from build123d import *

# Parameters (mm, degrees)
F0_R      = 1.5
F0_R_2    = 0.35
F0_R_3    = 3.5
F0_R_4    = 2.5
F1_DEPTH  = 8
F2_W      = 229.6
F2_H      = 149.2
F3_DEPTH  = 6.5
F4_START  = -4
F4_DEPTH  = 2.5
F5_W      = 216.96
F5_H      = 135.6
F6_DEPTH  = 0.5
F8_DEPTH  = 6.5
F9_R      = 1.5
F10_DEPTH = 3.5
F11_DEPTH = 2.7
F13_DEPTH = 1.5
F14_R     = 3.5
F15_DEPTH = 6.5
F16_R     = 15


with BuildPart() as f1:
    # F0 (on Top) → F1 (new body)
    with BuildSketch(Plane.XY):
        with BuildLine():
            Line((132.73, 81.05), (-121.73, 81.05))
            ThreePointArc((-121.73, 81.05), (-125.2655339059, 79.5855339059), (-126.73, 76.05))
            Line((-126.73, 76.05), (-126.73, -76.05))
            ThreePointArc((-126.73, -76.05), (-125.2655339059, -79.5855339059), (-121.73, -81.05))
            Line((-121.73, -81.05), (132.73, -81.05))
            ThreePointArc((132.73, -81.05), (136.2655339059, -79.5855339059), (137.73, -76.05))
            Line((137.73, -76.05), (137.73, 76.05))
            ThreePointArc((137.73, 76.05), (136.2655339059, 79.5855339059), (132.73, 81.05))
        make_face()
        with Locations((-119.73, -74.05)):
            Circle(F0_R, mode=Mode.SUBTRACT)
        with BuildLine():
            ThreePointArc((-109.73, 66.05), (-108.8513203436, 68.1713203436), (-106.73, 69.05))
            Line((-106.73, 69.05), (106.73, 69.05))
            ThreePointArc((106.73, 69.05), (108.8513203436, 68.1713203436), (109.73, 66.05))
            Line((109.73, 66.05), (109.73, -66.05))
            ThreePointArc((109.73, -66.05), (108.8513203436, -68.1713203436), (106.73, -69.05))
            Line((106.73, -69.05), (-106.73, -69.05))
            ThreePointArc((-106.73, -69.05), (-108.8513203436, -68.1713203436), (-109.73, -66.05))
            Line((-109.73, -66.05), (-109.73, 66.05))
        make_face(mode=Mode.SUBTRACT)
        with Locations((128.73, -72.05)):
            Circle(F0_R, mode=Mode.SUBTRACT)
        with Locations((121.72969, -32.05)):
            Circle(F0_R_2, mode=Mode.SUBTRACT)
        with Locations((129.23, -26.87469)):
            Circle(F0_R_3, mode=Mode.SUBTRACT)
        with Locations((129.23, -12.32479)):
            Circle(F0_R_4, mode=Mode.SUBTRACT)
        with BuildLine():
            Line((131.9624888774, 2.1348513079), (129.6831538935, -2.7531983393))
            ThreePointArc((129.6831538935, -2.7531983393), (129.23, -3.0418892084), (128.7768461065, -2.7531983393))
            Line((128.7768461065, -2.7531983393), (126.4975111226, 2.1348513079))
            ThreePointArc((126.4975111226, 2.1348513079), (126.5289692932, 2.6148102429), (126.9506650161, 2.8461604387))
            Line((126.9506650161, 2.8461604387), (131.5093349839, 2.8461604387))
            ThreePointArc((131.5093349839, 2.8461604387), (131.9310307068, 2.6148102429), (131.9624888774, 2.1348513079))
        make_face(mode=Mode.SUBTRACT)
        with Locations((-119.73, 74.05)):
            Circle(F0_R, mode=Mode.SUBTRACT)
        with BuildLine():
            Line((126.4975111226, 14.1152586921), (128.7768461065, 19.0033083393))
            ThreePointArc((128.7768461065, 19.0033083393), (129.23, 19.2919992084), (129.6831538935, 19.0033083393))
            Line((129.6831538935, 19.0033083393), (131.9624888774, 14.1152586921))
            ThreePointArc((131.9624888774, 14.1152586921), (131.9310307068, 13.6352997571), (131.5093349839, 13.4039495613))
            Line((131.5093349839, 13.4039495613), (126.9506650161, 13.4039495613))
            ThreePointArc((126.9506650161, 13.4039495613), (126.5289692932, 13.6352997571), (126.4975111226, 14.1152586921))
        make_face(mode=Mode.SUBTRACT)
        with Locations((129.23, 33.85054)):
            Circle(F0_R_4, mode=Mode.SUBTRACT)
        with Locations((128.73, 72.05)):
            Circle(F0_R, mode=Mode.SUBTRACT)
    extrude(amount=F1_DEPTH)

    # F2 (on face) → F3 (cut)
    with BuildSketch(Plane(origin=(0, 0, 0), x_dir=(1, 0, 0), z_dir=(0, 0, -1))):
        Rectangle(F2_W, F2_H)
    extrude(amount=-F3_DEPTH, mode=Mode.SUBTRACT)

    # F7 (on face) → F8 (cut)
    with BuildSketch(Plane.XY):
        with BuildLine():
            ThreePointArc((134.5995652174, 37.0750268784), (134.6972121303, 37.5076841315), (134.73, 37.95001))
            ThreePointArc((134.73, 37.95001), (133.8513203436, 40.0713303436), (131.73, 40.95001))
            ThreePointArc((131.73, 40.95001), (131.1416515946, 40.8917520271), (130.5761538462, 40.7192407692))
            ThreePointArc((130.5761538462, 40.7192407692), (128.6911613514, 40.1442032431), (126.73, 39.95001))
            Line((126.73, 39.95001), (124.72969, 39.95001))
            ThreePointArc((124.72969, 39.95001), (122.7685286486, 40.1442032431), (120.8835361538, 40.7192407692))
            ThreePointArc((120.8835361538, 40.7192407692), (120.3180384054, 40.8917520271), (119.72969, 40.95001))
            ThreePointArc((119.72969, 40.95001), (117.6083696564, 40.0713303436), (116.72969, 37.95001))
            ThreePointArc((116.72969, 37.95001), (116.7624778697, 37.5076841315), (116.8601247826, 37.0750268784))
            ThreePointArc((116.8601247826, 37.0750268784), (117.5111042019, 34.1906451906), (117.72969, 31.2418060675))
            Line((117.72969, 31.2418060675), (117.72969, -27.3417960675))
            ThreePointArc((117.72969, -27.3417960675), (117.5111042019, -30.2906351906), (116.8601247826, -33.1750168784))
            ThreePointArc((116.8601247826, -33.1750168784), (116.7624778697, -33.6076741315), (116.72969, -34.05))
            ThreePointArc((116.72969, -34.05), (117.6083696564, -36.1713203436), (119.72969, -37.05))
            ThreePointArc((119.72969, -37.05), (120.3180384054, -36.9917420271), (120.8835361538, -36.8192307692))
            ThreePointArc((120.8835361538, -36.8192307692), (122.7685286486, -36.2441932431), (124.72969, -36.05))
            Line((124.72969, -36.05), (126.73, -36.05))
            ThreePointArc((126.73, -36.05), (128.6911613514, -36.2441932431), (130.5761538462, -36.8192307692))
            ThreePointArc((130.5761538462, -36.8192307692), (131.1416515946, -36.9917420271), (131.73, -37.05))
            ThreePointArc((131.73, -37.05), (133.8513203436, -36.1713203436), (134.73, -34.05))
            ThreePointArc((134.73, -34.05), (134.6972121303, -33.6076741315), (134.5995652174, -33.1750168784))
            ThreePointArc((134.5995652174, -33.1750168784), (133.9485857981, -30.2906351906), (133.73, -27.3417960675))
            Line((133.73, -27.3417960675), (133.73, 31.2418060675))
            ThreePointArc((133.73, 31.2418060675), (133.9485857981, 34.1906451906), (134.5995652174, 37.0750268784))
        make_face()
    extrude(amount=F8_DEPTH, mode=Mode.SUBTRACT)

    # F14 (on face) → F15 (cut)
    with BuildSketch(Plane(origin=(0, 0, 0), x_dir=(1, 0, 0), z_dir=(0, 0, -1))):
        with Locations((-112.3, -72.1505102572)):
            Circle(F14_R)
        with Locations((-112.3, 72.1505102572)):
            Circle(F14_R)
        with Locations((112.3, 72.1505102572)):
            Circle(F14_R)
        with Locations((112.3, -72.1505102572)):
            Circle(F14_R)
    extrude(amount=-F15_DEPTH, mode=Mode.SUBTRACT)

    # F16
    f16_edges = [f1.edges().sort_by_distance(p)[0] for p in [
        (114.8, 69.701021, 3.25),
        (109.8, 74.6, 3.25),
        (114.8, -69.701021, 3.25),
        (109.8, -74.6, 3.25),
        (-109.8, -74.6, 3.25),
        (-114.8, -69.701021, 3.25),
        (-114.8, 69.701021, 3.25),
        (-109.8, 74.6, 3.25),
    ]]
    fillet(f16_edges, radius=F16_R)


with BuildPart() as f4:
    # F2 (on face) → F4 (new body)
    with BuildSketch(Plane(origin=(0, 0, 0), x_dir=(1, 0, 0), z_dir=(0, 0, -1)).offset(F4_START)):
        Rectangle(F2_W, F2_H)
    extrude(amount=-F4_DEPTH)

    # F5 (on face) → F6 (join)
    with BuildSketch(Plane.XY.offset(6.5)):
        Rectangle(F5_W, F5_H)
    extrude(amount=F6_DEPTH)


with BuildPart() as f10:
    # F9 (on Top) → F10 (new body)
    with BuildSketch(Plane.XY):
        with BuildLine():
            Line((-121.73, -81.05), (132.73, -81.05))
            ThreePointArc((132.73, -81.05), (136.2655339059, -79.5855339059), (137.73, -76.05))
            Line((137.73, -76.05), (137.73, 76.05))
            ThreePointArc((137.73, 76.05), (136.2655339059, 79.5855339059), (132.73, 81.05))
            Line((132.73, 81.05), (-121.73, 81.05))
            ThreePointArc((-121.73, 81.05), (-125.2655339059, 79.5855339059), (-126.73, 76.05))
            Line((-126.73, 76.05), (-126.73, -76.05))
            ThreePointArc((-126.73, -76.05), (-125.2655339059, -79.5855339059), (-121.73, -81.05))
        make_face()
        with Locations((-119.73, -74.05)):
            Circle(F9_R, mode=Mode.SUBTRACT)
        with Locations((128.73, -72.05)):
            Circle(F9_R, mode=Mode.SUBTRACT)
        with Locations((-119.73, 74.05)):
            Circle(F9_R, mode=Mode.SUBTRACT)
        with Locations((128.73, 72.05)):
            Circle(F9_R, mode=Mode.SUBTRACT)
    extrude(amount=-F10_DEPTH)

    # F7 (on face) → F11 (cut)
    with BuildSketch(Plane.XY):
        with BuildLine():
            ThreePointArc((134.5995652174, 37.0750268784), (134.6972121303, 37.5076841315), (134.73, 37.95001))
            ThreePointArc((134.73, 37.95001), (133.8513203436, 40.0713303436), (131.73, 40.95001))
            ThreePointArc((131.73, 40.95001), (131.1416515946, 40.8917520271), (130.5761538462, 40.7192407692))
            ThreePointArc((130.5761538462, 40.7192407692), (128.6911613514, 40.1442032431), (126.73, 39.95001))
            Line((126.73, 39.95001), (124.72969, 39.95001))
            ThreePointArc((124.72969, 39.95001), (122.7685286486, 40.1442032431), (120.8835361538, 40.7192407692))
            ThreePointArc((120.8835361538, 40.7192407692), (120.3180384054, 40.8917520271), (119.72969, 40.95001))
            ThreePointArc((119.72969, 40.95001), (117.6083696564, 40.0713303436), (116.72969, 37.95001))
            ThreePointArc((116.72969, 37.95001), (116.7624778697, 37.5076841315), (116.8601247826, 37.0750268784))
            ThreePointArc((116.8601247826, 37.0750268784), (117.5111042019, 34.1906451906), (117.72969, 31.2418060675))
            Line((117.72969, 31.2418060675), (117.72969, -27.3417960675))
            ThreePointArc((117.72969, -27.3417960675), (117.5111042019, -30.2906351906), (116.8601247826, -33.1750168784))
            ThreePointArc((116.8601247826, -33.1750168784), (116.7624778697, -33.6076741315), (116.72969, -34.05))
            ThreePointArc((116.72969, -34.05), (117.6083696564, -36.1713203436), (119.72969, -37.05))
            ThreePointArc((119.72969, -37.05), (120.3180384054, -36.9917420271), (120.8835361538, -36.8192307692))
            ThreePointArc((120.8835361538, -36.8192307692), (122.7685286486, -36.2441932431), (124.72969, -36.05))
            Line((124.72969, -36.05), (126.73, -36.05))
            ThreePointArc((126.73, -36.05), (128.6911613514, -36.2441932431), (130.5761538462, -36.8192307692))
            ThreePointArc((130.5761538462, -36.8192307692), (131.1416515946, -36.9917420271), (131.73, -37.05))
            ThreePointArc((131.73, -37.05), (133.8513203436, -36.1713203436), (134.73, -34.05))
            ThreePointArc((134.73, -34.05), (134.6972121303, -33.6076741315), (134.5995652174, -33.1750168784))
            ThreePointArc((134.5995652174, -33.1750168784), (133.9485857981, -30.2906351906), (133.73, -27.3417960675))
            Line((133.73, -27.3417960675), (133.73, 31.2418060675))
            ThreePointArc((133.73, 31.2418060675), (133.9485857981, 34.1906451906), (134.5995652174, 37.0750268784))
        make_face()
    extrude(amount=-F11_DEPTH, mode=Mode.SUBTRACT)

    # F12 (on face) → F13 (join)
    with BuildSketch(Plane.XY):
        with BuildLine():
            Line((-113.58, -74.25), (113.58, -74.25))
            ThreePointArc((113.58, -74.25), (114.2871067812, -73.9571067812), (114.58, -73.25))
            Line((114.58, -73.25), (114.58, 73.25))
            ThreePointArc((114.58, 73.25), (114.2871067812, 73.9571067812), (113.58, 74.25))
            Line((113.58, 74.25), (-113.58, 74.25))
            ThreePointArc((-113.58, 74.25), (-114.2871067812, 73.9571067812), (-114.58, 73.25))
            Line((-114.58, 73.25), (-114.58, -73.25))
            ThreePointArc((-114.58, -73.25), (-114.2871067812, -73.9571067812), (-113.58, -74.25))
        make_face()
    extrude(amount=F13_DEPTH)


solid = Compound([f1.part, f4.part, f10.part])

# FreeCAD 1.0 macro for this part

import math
import FreeCAD as App
import Part
import Sketcher

V = App.Vector
Q = App.Units.Quantity


def edges_at(feature, points):
    """Names of the edges that pass closest to the given points."""
    edges = feature.Shape.Edges
    near = lambda p: min(range(len(edges)), key=lambda i: edges[i].distToShape(Part.Vertex(*p))[0])
    return sorted({f"Edge{near(p) + 1}" for p in points})


def add_polygon(sketch, points):
    """Adds a closed chain of lines whose ends are joined by coincident constraints."""
    first, n = sketch.GeometryCount, len(points)
    for a, b in zip(points, points[1:] + points[:1]):
        sketch.addGeometry(Part.LineSegment(App.Vector(*a, 0), App.Vector(*b, 0)), False)
    for i in range(n):
        sketch.addConstraint(Sketcher.Constraint("Coincident", first + i, 2, first + (i + 1) % n, 1))

doc = App.newDocument("Part")
body = doc.addObject("PartDesign::Body", "Body")

# Sketch on XY plane
sketch1 = body.newObject("Sketcher::SketchObject", "Sketch")
sketch1.AttachmentSupport = (doc.getObject("XY_Plane"), [""])
sketch1.MapMode = "FlatFace"
sketch1.addGeometry([
    Part.LineSegment(V(132.73, 81.05, 0), V(-121.73, 81.05, 0)),  # 0
    Part.ArcOfCircle(Part.Circle(V(-121.73, 76.05, 0), V(0, 0, 1), 5), math.radians(90), math.radians(180)),  # 1
    Part.LineSegment(V(-126.73, 76.05, 0), V(-126.73, -76.05, 0)),  # 2
    Part.ArcOfCircle(Part.Circle(V(-121.73, -76.05, 0), V(0, 0, 1), 5), math.radians(180), math.radians(270)),  # 3
    Part.LineSegment(V(-121.73, -81.05, 0), V(132.73, -81.05, 0)),  # 4
    Part.ArcOfCircle(Part.Circle(V(132.73, -76.05, 0), V(0, 0, 1), 5), math.radians(-90), math.radians(0)),  # 5
    Part.LineSegment(V(137.73, -76.05, 0), V(137.73, 76.05, 0)),  # 6
    Part.ArcOfCircle(Part.Circle(V(132.73, 76.05, 0), V(0, 0, 1), 5), math.radians(0), math.radians(90)),  # 7
    Part.Circle(V(-119.73, -74.05, 0), V(0, 0, 1), 1.5),  # 8
    Part.Circle(V(128.73, -72.05, 0), V(0, 0, 1), 1.5),  # 9
    Part.Circle(V(121.73, -32.05, 0), V(0, 0, 1), 0.35),  # 10
    Part.Circle(V(129.23, -26.87, 0), V(0, 0, 1), 3.5),  # 11
    Part.Circle(V(129.23, -12.32, 0), V(0, 0, 1), 2.5),  # 12
    Part.ArcOfCircle(Part.Circle(V(131.51, 2.35, 0), V(0, 0, 1), 0.5), math.radians(-25), math.radians(90)),  # 13
    Part.LineSegment(V(131.96, 2.13, 0), V(129.68, -2.75, 0)),  # 14
    Part.ArcOfCircle(Part.Circle(V(129.23, -2.54, 0), V(0, 0, 1), 0.5), math.radians(-155), math.radians(-25)),  # 15
    Part.LineSegment(V(128.78, -2.75, 0), V(126.5, 2.13, 0)),  # 16
    Part.ArcOfCircle(Part.Circle(V(126.95, 2.35, 0), V(0, 0, 1), 0.5), math.radians(90), math.radians(205)),  # 17
    Part.LineSegment(V(126.95, 2.85, 0), V(131.51, 2.85, 0)),  # 18
    Part.LineSegment(V(-109.73, -66.05, 0), V(-109.73, 66.05, 0)),  # 19
    Part.ArcOfCircle(Part.Circle(V(-106.73, 66.05, 0), V(0, 0, 1), 3), math.radians(90), math.radians(180)),  # 20
    Part.LineSegment(V(-106.73, 69.05, 0), V(106.73, 69.05, 0)),  # 21
    Part.ArcOfCircle(Part.Circle(V(106.73, 66.05, 0), V(0, 0, 1), 3), math.radians(0), math.radians(90)),  # 22
    Part.LineSegment(V(109.73, 66.05, 0), V(109.73, -66.05, 0)),  # 23
    Part.ArcOfCircle(Part.Circle(V(106.73, -66.05, 0), V(0, 0, 1), 3), math.radians(-90), math.radians(0)),  # 24
    Part.LineSegment(V(106.73, -69.05, 0), V(-106.73, -69.05, 0)),  # 25
    Part.ArcOfCircle(Part.Circle(V(-106.73, -66.05, 0), V(0, 0, 1), 3), math.radians(180), math.radians(270)),  # 26
    Part.Circle(V(-119.73, 74.05, 0), V(0, 0, 1), 1.5),  # 27
    Part.ArcOfCircle(Part.Circle(V(126.95, 13.9, 0), V(0, 0, 1), 0.5), math.radians(155), math.radians(270)),  # 28
    Part.LineSegment(V(126.5, 14.12, 0), V(128.78, 19, 0)),  # 29
    Part.ArcOfCircle(Part.Circle(V(129.23, 18.79, 0), V(0, 0, 1), 0.5), math.radians(25), math.radians(155)),  # 30
    Part.LineSegment(V(129.68, 19, 0), V(131.96, 14.12, 0)),  # 31
    Part.ArcOfCircle(Part.Circle(V(131.51, 13.9, 0), V(0, 0, 1), 0.5), math.radians(-90), math.radians(25)),  # 32
    Part.LineSegment(V(131.51, 13.4, 0), V(126.95, 13.4, 0)),  # 33
    Part.Circle(V(129.23, 33.85, 0), V(0, 0, 1), 2.5),  # 34
    Part.Circle(V(128.73, 72.05, 0), V(0, 0, 1), 1.5),  # 35
], False)
sketch1.addConstraint([
    Sketcher.Constraint("Tangent", 0, 2, 1, 1),
    Sketcher.Constraint("Tangent", 1, 2, 2, 1),
    Sketcher.Constraint("Tangent", 2, 2, 3, 1),
    Sketcher.Constraint("Tangent", 3, 2, 4, 1),
    Sketcher.Constraint("Tangent", 4, 2, 5, 1),
    Sketcher.Constraint("Tangent", 5, 2, 6, 1),
    Sketcher.Constraint("Tangent", 6, 2, 7, 1),
    Sketcher.Constraint("Tangent", 7, 2, 0, 1),
    Sketcher.Constraint("Tangent", 13, 1, 14, 1),
    Sketcher.Constraint("Tangent", 14, 2, 15, 2),
    Sketcher.Constraint("Tangent", 15, 1, 16, 1),
    Sketcher.Constraint("Tangent", 16, 2, 17, 2),
    Sketcher.Constraint("Tangent", 17, 1, 18, 1),
    Sketcher.Constraint("Tangent", 18, 2, 13, 2),
    Sketcher.Constraint("Tangent", 19, 2, 20, 2),
    Sketcher.Constraint("Tangent", 20, 1, 21, 1),
    Sketcher.Constraint("Tangent", 21, 2, 22, 2),
    Sketcher.Constraint("Tangent", 22, 1, 23, 1),
    Sketcher.Constraint("Tangent", 23, 2, 24, 2),
    Sketcher.Constraint("Tangent", 24, 1, 25, 1),
    Sketcher.Constraint("Tangent", 25, 2, 26, 2),
    Sketcher.Constraint("Tangent", 26, 1, 19, 1),
    Sketcher.Constraint("Tangent", 28, 1, 29, 1),
    Sketcher.Constraint("Tangent", 29, 2, 30, 2),
    Sketcher.Constraint("Tangent", 30, 1, 31, 1),
    Sketcher.Constraint("Tangent", 31, 2, 32, 2),
    Sketcher.Constraint("Tangent", 32, 1, 33, 1),
    Sketcher.Constraint("Tangent", 33, 2, 28, 2),
    Sketcher.Constraint("Horizontal", 0),
    Sketcher.Constraint("Vertical", 2),
    Sketcher.Constraint("Horizontal", 4),
    Sketcher.Constraint("Vertical", 6),
    Sketcher.Constraint("Horizontal", 18),
    Sketcher.Constraint("Vertical", 19),
    Sketcher.Constraint("Horizontal", 21),
    Sketcher.Constraint("Vertical", 23),
    Sketcher.Constraint("Horizontal", 25),
    Sketcher.Constraint("Horizontal", 33),
    Sketcher.Constraint("Equal", 1, 3),
    Sketcher.Constraint("Equal", 3, 5),
    Sketcher.Constraint("Equal", 5, 7),
    Sketcher.Constraint("Equal", 8, 9),
    Sketcher.Constraint("Equal", 13, 15),
    Sketcher.Constraint("Equal", 15, 17),
    Sketcher.Constraint("Equal", 20, 22),
    Sketcher.Constraint("Equal", 22, 24),
    Sketcher.Constraint("Equal", 24, 26),
    Sketcher.Constraint("Equal", 9, 27),
    Sketcher.Constraint("Equal", 17, 28),
    Sketcher.Constraint("Equal", 28, 30),
    Sketcher.Constraint("Equal", 30, 32),
    Sketcher.Constraint("Equal", 12, 34),
    Sketcher.Constraint("Equal", 27, 35),
    Sketcher.Constraint("Symmetric", 20, 3, 24, 3, -1, 1),
    Sketcher.Constraint("Symmetric", 8, 3, 27, 3, -1),
    Sketcher.Constraint("Symmetric", 9, 3, 35, 3, -1),
    Sketcher.Constraint("Parallel", 14, 29),
    Sketcher.Constraint("Parallel", 16, 31),
    Sketcher.Constraint("Horizontal", 14, 2, 15, 1),
    Sketcher.Constraint("Vertical", 11, 3, 12, 3),
    Sketcher.Constraint("Vertical", 12, 3, 15, 3),
    Sketcher.Constraint("Vertical", 17, 3, 28, 3),
    Sketcher.Constraint("Vertical", 15, 3, 30, 3),
    Sketcher.Constraint("Vertical", 30, 3, 34, 3),
    Sketcher.Constraint("Diameter", 8, Q("3 mm")),
    Sketcher.Constraint("Diameter", 11, Q("7 mm")),
    Sketcher.Constraint("Diameter", 12, Q("5 mm")),
    Sketcher.Constraint("Radius", 1, Q("5 mm")),
    Sketcher.Constraint("Radius", 20, Q("3 mm")),
    Sketcher.Constraint("Diameter", 10, Q("0.7 mm")),
    Sketcher.Constraint("Radius", 13, Q("0.5 mm")),
    Sketcher.Constraint("Angle", 14, Q("-115 deg")),
    Sketcher.Constraint("DistanceY", 2, 2, 2, 1, Q("152.1 mm")),
    Sketcher.Constraint("DistanceY", 19, 1, 19, 2, Q("132.1 mm")),
    Sketcher.Constraint("DistanceX", 3, 3, 8, 3, Q("2 mm")),
    Sketcher.Constraint("DistanceY", 3, 3, 8, 3, Q("2 mm")),
    Sketcher.Constraint("DistanceX", 9, 3, 5, 3, Q("4 mm")),
    Sketcher.Constraint("DistanceY", 5, 3, 9, 3, Q("4 mm")),
    Sketcher.Constraint("DistanceY", 9, 3, 10, 3, Q("40 mm")),
    Sketcher.Constraint("DistanceX", 1, 3, 20, 3, Q("15 mm")),
    Sketcher.Constraint("DistanceY", 20, 3, 1, 3, Q("10 mm")),
    Sketcher.Constraint("DistanceX", 22, 3, 7, 3, Q("26 mm")),
    Sketcher.Constraint("DistanceX", 0, 2, 0, 1, Q("254.46 mm")),
    Sketcher.Constraint("DistanceX", 9, 3, 11, 3, Q("0.5 mm")),
    Sketcher.Constraint("DistanceY", -1, 1, 30, 3, Q("18.791999 mm")),
    Sketcher.Constraint("DistanceX", 18, 1, 18, 2, Q("4.55867 mm")),
    Sketcher.Constraint("DistanceY", 14, 2, -1, 1, Q("2.753198 mm")),
    Sketcher.Constraint("DistanceY", 11, 3, 12, 3, Q("14.5499 mm")),
    Sketcher.Constraint("DistanceY", 12, 3, 15, 3, Q("9.782901 mm")),
    Sketcher.Constraint("DistanceX", -1, 1, 10, 3, Q("121.72969 mm")),
    Sketcher.Constraint("DistanceY", -1, 1, 34, 3, Q("33.85054 mm")),
])
pad1 = body.newObject("PartDesign::Pad", "Pad")
pad1.Profile = sketch1
pad1.Length = 8

# Sketch on XY plane
sketch2 = body.newObject("Sketcher::SketchObject", "Sketch001")
sketch2.AttachmentSupport = (doc.getObject("XY_Plane"), [""])
sketch2.MapMode = "FlatFace"
add_polygon(sketch2, [(-115, -75), (-115, 75), (115, 75), (115, -75)])  # lines 0-3
sketch2.addConstraint([
    Sketcher.Constraint("Vertical", 0),
    Sketcher.Constraint("Horizontal", 1),
    Sketcher.Constraint("Vertical", 2),
    Sketcher.Constraint("Horizontal", 3),
    Sketcher.Constraint("Symmetric", 0, 2, 2, 2, -1, 1),
    Sketcher.Constraint("DistanceX", 1, 1, 1, 2, Q("229.6 mm")),
    Sketcher.Constraint("DistanceY", 0, 1, 0, 2, Q("149.2 mm")),
])
pocket1 = body.newObject("PartDesign::Pocket", "Pocket")
pocket1.Profile = sketch2
pocket1.Length = 6.5
pocket1.Reversed = True

# Sketch on XY plane
sketch3 = body.newObject("Sketcher::SketchObject", "Sketch002")
sketch3.AttachmentSupport = (doc.getObject("XY_Plane"), [""])
sketch3.MapMode = "FlatFace"
sketch3.addGeometry([
    Part.ArcOfCircle(Part.Circle(V(131.7, 38, 0), V(0, 0, 1), 3), math.radians(-16.96), math.radians(0)),  # 0
    Part.ArcOfCircle(Part.Circle(V(131.7, 38, 0), V(0, 0, 1), 3), math.radians(0), math.radians(90)),  # 1
    Part.ArcOfCircle(Part.Circle(V(131.7, 38, 0), V(0, 0, 1), 3), math.radians(90), math.radians(113)),  # 2
    Part.ArcOfCircle(Part.Circle(V(126.7, 50, 0), V(0, 0, 1), 10), math.radians(-90), math.radians(-67)),  # 3
    Part.LineSegment(V(126.7, 40, 0), V(124.7, 40, 0)),  # 4
    Part.ArcOfCircle(Part.Circle(V(124.7, 50, 0), V(0, 0, 1), 10), math.radians(-113), math.radians(-90)),  # 5
    Part.ArcOfCircle(Part.Circle(V(119.7, 38, 0), V(0, 0, 1), 3), math.radians(67), math.radians(90)),  # 6
    Part.ArcOfCircle(Part.Circle(V(119.7, 38, 0), V(0, 0, 1), 3), math.radians(90), math.radians(180)),  # 7
    Part.ArcOfCircle(Part.Circle(V(119.7, 38, 0), V(0, 0, 1), 3), math.radians(180), math.radians(196.96)),  # 8
    Part.ArcOfCircle(Part.Circle(V(97.7, 31.2, 0), V(0, 0, 1), 20), math.radians(0), math.radians(16.96)),  # 9
    Part.LineSegment(V(117.7, 31.2, 0), V(117.7, -27.3, 0)),  # 10
    Part.ArcOfCircle(Part.Circle(V(97.7, -27.3, 0), V(0, 0, 1), 20), math.radians(-16.96), math.radians(0)),  # 11
    Part.ArcOfCircle(Part.Circle(V(119.7, -34, 0), V(0, 0, 1), 3), math.radians(163.04), math.radians(180)),  # 12
    Part.ArcOfCircle(Part.Circle(V(119.7, -34, 0), V(0, 0, 1), 3), math.radians(180), math.radians(270)),  # 13
    Part.ArcOfCircle(Part.Circle(V(119.7, -34.1, 0), V(0, 0, 1), 3), math.radians(-90), math.radians(-67)),  # 14
    Part.ArcOfCircle(Part.Circle(V(124.7, -46.1, 0), V(0, 0, 1), 10), math.radians(90), math.radians(113)),  # 15
    Part.LineSegment(V(124.7, -36, 0), V(126.7, -36, 0)),  # 16
    Part.ArcOfCircle(Part.Circle(V(126.7, -46.1, 0), V(0, 0, 1), 10), math.radians(67), math.radians(90)),  # 17
    Part.ArcOfCircle(Part.Circle(V(131.7, -34.1, 0), V(0, 0, 1), 3), math.radians(-113), math.radians(-90)),  # 18
    Part.ArcOfCircle(Part.Circle(V(131.7, -34, 0), V(0, 0, 1), 3), math.radians(-90), math.radians(0)),  # 19
    Part.ArcOfCircle(Part.Circle(V(131.7, -34, 0), V(0, 0, 1), 3), math.radians(0), math.radians(16.96)),  # 20
    Part.ArcOfCircle(Part.Circle(V(153.7, -27.3, 0), V(0, 0, 1), 20), math.radians(180), math.radians(196.96)),  # 21
    Part.LineSegment(V(133.7, -27.3, 0), V(133.7, 31.2, 0)),  # 22
    Part.ArcOfCircle(Part.Circle(V(153.7, 31.2, 0), V(0, 0, 1), 20), math.radians(163.04), math.radians(180)),  # 23
], False)
sketch3.addConstraint([
    Sketcher.Constraint("Tangent", 0, 2, 1, 1),
    Sketcher.Constraint("Tangent", 1, 2, 2, 1),
    Sketcher.Constraint("Tangent", 2, 2, 3, 2),
    Sketcher.Constraint("Tangent", 3, 1, 4, 1),
    Sketcher.Constraint("Tangent", 4, 2, 5, 2),
    Sketcher.Constraint("Tangent", 5, 1, 6, 1),
    Sketcher.Constraint("Tangent", 6, 2, 7, 1),
    Sketcher.Constraint("Tangent", 7, 2, 8, 1),
    Sketcher.Constraint("Tangent", 8, 2, 9, 2),
    Sketcher.Constraint("Tangent", 9, 1, 10, 1),
    Sketcher.Constraint("Tangent", 10, 2, 11, 2),
    Sketcher.Constraint("Tangent", 11, 1, 12, 1),
    Sketcher.Constraint("Tangent", 12, 2, 13, 1),
    Sketcher.Constraint("Tangent", 13, 2, 14, 1),
    Sketcher.Constraint("Tangent", 14, 2, 15, 2),
    Sketcher.Constraint("Tangent", 15, 1, 16, 1),
    Sketcher.Constraint("Tangent", 16, 2, 17, 2),
    Sketcher.Constraint("Tangent", 17, 1, 18, 1),
    Sketcher.Constraint("Tangent", 18, 2, 19, 1),
    Sketcher.Constraint("Tangent", 19, 2, 20, 1),
    Sketcher.Constraint("Tangent", 20, 2, 21, 2),
    Sketcher.Constraint("Tangent", 21, 1, 22, 1),
    Sketcher.Constraint("Tangent", 22, 2, 23, 2),
    Sketcher.Constraint("Tangent", 23, 1, 0, 1),
    Sketcher.Constraint("Horizontal", 4),
    Sketcher.Constraint("Vertical", 10),
    Sketcher.Constraint("Horizontal", 16),
    Sketcher.Constraint("Vertical", 22),
    Sketcher.Constraint("Coincident", 2, 3, 0, 3),
    Sketcher.Constraint("Coincident", 8, 3, 6, 3),
    Sketcher.Constraint("Coincident", 14, 3, 12, 3),
    Sketcher.Constraint("Coincident", 20, 3, 18, 3),
    Sketcher.Constraint("Equal", 3, 5),
    Sketcher.Constraint("Equal", 2, 6),
    Sketcher.Constraint("Equal", 9, 11),
    Sketcher.Constraint("Equal", 8, 12),
    Sketcher.Constraint("Equal", 5, 15),
    Sketcher.Constraint("Equal", 15, 17),
    Sketcher.Constraint("Equal", 14, 18),
    Sketcher.Constraint("Equal", 11, 21),
    Sketcher.Constraint("Equal", 21, 23),
    Sketcher.Constraint("Horizontal", 2, 3, 6, 3),
    Sketcher.Constraint("Horizontal", 14, 3, 18, 3),
    Sketcher.Constraint("Horizontal", 11, 3, 21, 3),
    Sketcher.Constraint("Horizontal", 9, 3, 23, 3),
    Sketcher.Constraint("Horizontal", 8, 3, 0, 2),
    Sketcher.Constraint("Horizontal", 0, 2, 7, 2),
    Sketcher.Constraint("Horizontal", 20, 3, 12, 2),
    Sketcher.Constraint("Horizontal", 12, 2, 19, 2),
    Sketcher.Constraint("Vertical", 8, 3, 12, 3),
    Sketcher.Constraint("Vertical", 5, 3, 15, 3),
    Sketcher.Constraint("Vertical", 20, 3, 1, 2),
    Sketcher.Constraint("Vertical", 14, 3, 6, 2),
    Sketcher.Constraint("Vertical", 6, 2, 13, 2),
    Sketcher.Constraint("Vertical", 1, 2, 18, 2),
    Sketcher.Constraint("Radius", 0, Q("3 mm")),
    Sketcher.Constraint("Radius", 3, Q("10 mm")),
    Sketcher.Constraint("Radius", 9, Q("20 mm")),
    Sketcher.Constraint("DistanceX", 3, 3, 2, 3, Q("5 mm")),
    Sketcher.Constraint("DistanceX", 9, 3, 8, 3, Q("22 mm")),
    Sketcher.Constraint("DistanceX", -1, 1, 0, 3, Q("131.73 mm")),
    Sketcher.Constraint("DistanceY", 12, 3, -1, 1, Q("34.05 mm")),
    Sketcher.Constraint("DistanceX", 4, 2, 4, 1, Q("2.00031 mm")),
    Sketcher.Constraint("DistanceY", 10, 2, 10, 1, Q("58.583602 mm")),
])
pocket2 = body.newObject("PartDesign::Pocket", "Pocket001")
pocket2.Profile = sketch3
pocket2.Length = 6.5
pocket2.Reversed = True

# Sketch on XY plane
sketch4 = body.newObject("Sketcher::SketchObject", "Sketch003")
sketch4.AttachmentSupport = (doc.getObject("XY_Plane"), [""])
sketch4.MapMode = "FlatFace"
sketch4.addGeometry([
    Part.Circle(V(-112.3, 72.2, 0), V(0, 0, 1), 3.5),
    Part.Circle(V(-112.3, -72.2, 0), V(0, 0, 1), 3.5),
    Part.Circle(V(112.3, -72.2, 0), V(0, 0, 1), 3.5),
    Part.Circle(V(112.3, 72.2, 0), V(0, 0, 1), 3.5),
], False)
sketch4.addConstraint([
    Sketcher.Constraint("Equal", 0, 1),
    Sketcher.Constraint("Equal", 1, 2),
    Sketcher.Constraint("Equal", 2, 3),
    Sketcher.Constraint("Symmetric", 0, 3, 2, 3, -1, 1),
    Sketcher.Constraint("Symmetric", 1, 3, 3, 3, -1, 1),
    Sketcher.Constraint("Symmetric", 1, 3, 2, 3, -2),
    Sketcher.Constraint("Diameter", 0, Q("7 mm")),
    Sketcher.Constraint("DistanceX", 0, 3, -1, 1, Q("112.3 mm")),
    Sketcher.Constraint("DistanceY", -1, 1, 0, 3, Q("72.15051 mm")),
])
pocket3 = body.newObject("PartDesign::Pocket", "Pocket002")
pocket3.Profile = sketch4
pocket3.Length = 6.5
pocket3.Reversed = True
doc.recompute()

fillet = body.newObject("PartDesign::Fillet", "Fillet")
fillet.Base = (pocket3, edges_at(pocket3, [
    (114.8, 69.701, 3.25),
    (109.8, 74.6, 3.25),
    (114.8, -69.701, 3.25),
    (109.8, -74.6, 3.25),
    (-109.8, -74.6, 3.25),
    (-114.8, -69.701, 3.25),
    (-114.8, 69.701, 3.25),
    (-109.8, 74.6, 3.25),
]))
fillet.Radius = 15
body2 = doc.addObject("PartDesign::Body", "Body001")

# Sketch on XY plane
sketch5 = body2.newObject("Sketcher::SketchObject", "Sketch004")
sketch5.AttachmentSupport = (doc.getObject("XY_Plane001"), [""])
sketch5.MapMode = "FlatFace"
sketch5.AttachmentOffset = App.Placement(V(0, 0, 4), App.Rotation())
add_polygon(sketch5, [(-115, -75), (-115, 75), (115, 75), (115, -75)])  # lines 0-3
sketch5.addConstraint([
    Sketcher.Constraint("Vertical", 0),
    Sketcher.Constraint("Horizontal", 1),
    Sketcher.Constraint("Vertical", 2),
    Sketcher.Constraint("Horizontal", 3),
    Sketcher.Constraint("Symmetric", 0, 2, 2, 2, -1, 1),
    Sketcher.Constraint("DistanceX", 1, 1, 1, 2, Q("229.6 mm")),
    Sketcher.Constraint("DistanceY", 0, 1, 0, 2, Q("149.2 mm")),
])
pad2 = body2.newObject("PartDesign::Pad", "Pad001")
pad2.Profile = sketch5
pad2.Length = 2.5

# Sketch on XY plane
sketch6 = body2.newObject("Sketcher::SketchObject", "Sketch005")
sketch6.AttachmentSupport = (doc.getObject("XY_Plane001"), [""])
sketch6.MapMode = "FlatFace"
sketch6.AttachmentOffset = App.Placement(V(0, 0, 6.5), App.Rotation())
add_polygon(sketch6, [(-108, 68), (-108, -68), (108, -68), (108, 68)])  # lines 0-3
sketch6.addConstraint([
    Sketcher.Constraint("Vertical", 0),
    Sketcher.Constraint("Horizontal", 1),
    Sketcher.Constraint("Vertical", 2),
    Sketcher.Constraint("Horizontal", 3),
    Sketcher.Constraint("Symmetric", 0, 2, 2, 2, -1, 1),
    Sketcher.Constraint("DistanceY", 0, 2, 0, 1, Q("135.6 mm")),
    Sketcher.Constraint("DistanceX", 1, 1, 1, 2, Q("216.96 mm")),
])
pad3 = body2.newObject("PartDesign::Pad", "Pad002")
pad3.Profile = sketch6
pad3.Length = 0.5
body3 = doc.addObject("PartDesign::Body", "Body002")

# Sketch on XY plane
sketch7 = body3.newObject("Sketcher::SketchObject", "Sketch006")
sketch7.AttachmentSupport = (doc.getObject("XY_Plane002"), [""])
sketch7.MapMode = "FlatFace"
sketch7.addGeometry([
    Part.LineSegment(V(-121.7, -81, 0), V(132.7, -81, 0)),  # 0
    Part.ArcOfCircle(Part.Circle(V(132.7, -76, 0), V(0, 0, 1), 5), math.radians(-90), math.radians(0)),  # 1
    Part.LineSegment(V(137.7, -76, 0), V(137.7, 76, 0)),  # 2
    Part.ArcOfCircle(Part.Circle(V(132.7, 76, 0), V(0, 0, 1), 5), math.radians(0), math.radians(90)),  # 3
    Part.LineSegment(V(132.7, 81, 0), V(-121.7, 81, 0)),  # 4
    Part.ArcOfCircle(Part.Circle(V(-121.7, 76, 0), V(0, 0, 1), 5), math.radians(90), math.radians(180)),  # 5
    Part.LineSegment(V(-126.7, 76, 0), V(-126.7, -76, 0)),  # 6
    Part.ArcOfCircle(Part.Circle(V(-121.7, -76, 0), V(0, 0, 1), 5), math.radians(180), math.radians(270)),  # 7
    Part.Circle(V(-119.7, -74, 0), V(0, 0, 1), 1.5),  # 8
    Part.Circle(V(128.7, -72, 0), V(0, 0, 1), 1.5),  # 9
    Part.Circle(V(-119.7, 74, 0), V(0, 0, 1), 1.5),  # 10
    Part.Circle(V(128.7, 72, 0), V(0, 0, 1), 1.5),  # 11
], False)
sketch7.addConstraint([
    Sketcher.Constraint("Tangent", 0, 2, 1, 1),
    Sketcher.Constraint("Tangent", 1, 2, 2, 1),
    Sketcher.Constraint("Tangent", 2, 2, 3, 1),
    Sketcher.Constraint("Tangent", 3, 2, 4, 1),
    Sketcher.Constraint("Tangent", 4, 2, 5, 1),
    Sketcher.Constraint("Tangent", 5, 2, 6, 1),
    Sketcher.Constraint("Tangent", 6, 2, 7, 1),
    Sketcher.Constraint("Tangent", 7, 2, 0, 1),
    Sketcher.Constraint("Horizontal", 0),
    Sketcher.Constraint("Vertical", 2),
    Sketcher.Constraint("Horizontal", 4),
    Sketcher.Constraint("Vertical", 6),
    Sketcher.Constraint("Equal", 1, 3),
    Sketcher.Constraint("Equal", 3, 5),
    Sketcher.Constraint("Equal", 5, 7),
    Sketcher.Constraint("Equal", 8, 9),
    Sketcher.Constraint("Equal", 9, 10),
    Sketcher.Constraint("Equal", 10, 11),
    Sketcher.Constraint("Symmetric", 8, 3, 10, 3, -1),
    Sketcher.Constraint("Symmetric", 9, 3, 11, 3, -1),
    Sketcher.Constraint("Diameter", 8, Q("3 mm")),
    Sketcher.Constraint("Radius", 1, Q("5 mm")),
    Sketcher.Constraint("DistanceY", 2, 1, 2, 2, Q("152.1 mm")),
    Sketcher.Constraint("DistanceX", 7, 3, 8, 3, Q("2 mm")),
    Sketcher.Constraint("DistanceY", 7, 3, 8, 3, Q("2 mm")),
    Sketcher.Constraint("DistanceX", 9, 3, 1, 3, Q("4 mm")),
    Sketcher.Constraint("DistanceY", 1, 3, 9, 3, Q("4 mm")),
    Sketcher.Constraint("DistanceY", 10, 3, 5, 3, Q("2 mm")),
    Sketcher.Constraint("DistanceX", 0, 1, 0, 2, Q("254.46 mm")),
    Sketcher.Constraint("DistanceX", -1, 1, 1, 3, Q("132.73 mm")),
])
pad4 = body3.newObject("PartDesign::Pad", "Pad003")
pad4.Profile = sketch7
pad4.Length = 3.5
pad4.Reversed = True

# Sketch on XY plane
sketch8 = body3.newObject("Sketcher::SketchObject", "Sketch007")
sketch8.AttachmentSupport = (doc.getObject("XY_Plane002"), [""])
sketch8.MapMode = "FlatFace"
sketch8.addGeometry([
    Part.ArcOfCircle(Part.Circle(V(131.7, 38, 0), V(0, 0, 1), 3), math.radians(-16.96), math.radians(0)),  # 0
    Part.ArcOfCircle(Part.Circle(V(131.7, 38, 0), V(0, 0, 1), 3), math.radians(0), math.radians(90)),  # 1
    Part.ArcOfCircle(Part.Circle(V(131.7, 38, 0), V(0, 0, 1), 3), math.radians(90), math.radians(113)),  # 2
    Part.ArcOfCircle(Part.Circle(V(126.7, 50, 0), V(0, 0, 1), 10), math.radians(-90), math.radians(-67)),  # 3
    Part.LineSegment(V(126.7, 40, 0), V(124.7, 40, 0)),  # 4
    Part.ArcOfCircle(Part.Circle(V(124.7, 50, 0), V(0, 0, 1), 10), math.radians(-113), math.radians(-90)),  # 5
    Part.ArcOfCircle(Part.Circle(V(119.7, 38, 0), V(0, 0, 1), 3), math.radians(67), math.radians(90)),  # 6
    Part.ArcOfCircle(Part.Circle(V(119.7, 38, 0), V(0, 0, 1), 3), math.radians(90), math.radians(180)),  # 7
    Part.ArcOfCircle(Part.Circle(V(119.7, 38, 0), V(0, 0, 1), 3), math.radians(180), math.radians(196.96)),  # 8
    Part.ArcOfCircle(Part.Circle(V(97.7, 31.2, 0), V(0, 0, 1), 20), math.radians(0), math.radians(16.96)),  # 9
    Part.LineSegment(V(117.7, 31.2, 0), V(117.7, -27.3, 0)),  # 10
    Part.ArcOfCircle(Part.Circle(V(97.7, -27.3, 0), V(0, 0, 1), 20), math.radians(-16.96), math.radians(0)),  # 11
    Part.ArcOfCircle(Part.Circle(V(119.7, -34, 0), V(0, 0, 1), 3), math.radians(163.04), math.radians(180)),  # 12
    Part.ArcOfCircle(Part.Circle(V(119.7, -34, 0), V(0, 0, 1), 3), math.radians(180), math.radians(270)),  # 13
    Part.ArcOfCircle(Part.Circle(V(119.7, -34.1, 0), V(0, 0, 1), 3), math.radians(-90), math.radians(-67)),  # 14
    Part.ArcOfCircle(Part.Circle(V(124.7, -46.1, 0), V(0, 0, 1), 10), math.radians(90), math.radians(113)),  # 15
    Part.LineSegment(V(124.7, -36, 0), V(126.7, -36, 0)),  # 16
    Part.ArcOfCircle(Part.Circle(V(126.7, -46.1, 0), V(0, 0, 1), 10), math.radians(67), math.radians(90)),  # 17
    Part.ArcOfCircle(Part.Circle(V(131.7, -34.1, 0), V(0, 0, 1), 3), math.radians(-113), math.radians(-90)),  # 18
    Part.ArcOfCircle(Part.Circle(V(131.7, -34, 0), V(0, 0, 1), 3), math.radians(-90), math.radians(0)),  # 19
    Part.ArcOfCircle(Part.Circle(V(131.7, -34, 0), V(0, 0, 1), 3), math.radians(0), math.radians(16.96)),  # 20
    Part.ArcOfCircle(Part.Circle(V(153.7, -27.3, 0), V(0, 0, 1), 20), math.radians(180), math.radians(196.96)),  # 21
    Part.LineSegment(V(133.7, -27.3, 0), V(133.7, 31.2, 0)),  # 22
    Part.ArcOfCircle(Part.Circle(V(153.7, 31.2, 0), V(0, 0, 1), 20), math.radians(163.04), math.radians(180)),  # 23
], False)
sketch8.addConstraint([
    Sketcher.Constraint("Tangent", 0, 2, 1, 1),
    Sketcher.Constraint("Tangent", 1, 2, 2, 1),
    Sketcher.Constraint("Tangent", 2, 2, 3, 2),
    Sketcher.Constraint("Tangent", 3, 1, 4, 1),
    Sketcher.Constraint("Tangent", 4, 2, 5, 2),
    Sketcher.Constraint("Tangent", 5, 1, 6, 1),
    Sketcher.Constraint("Tangent", 6, 2, 7, 1),
    Sketcher.Constraint("Tangent", 7, 2, 8, 1),
    Sketcher.Constraint("Tangent", 8, 2, 9, 2),
    Sketcher.Constraint("Tangent", 9, 1, 10, 1),
    Sketcher.Constraint("Tangent", 10, 2, 11, 2),
    Sketcher.Constraint("Tangent", 11, 1, 12, 1),
    Sketcher.Constraint("Tangent", 12, 2, 13, 1),
    Sketcher.Constraint("Tangent", 13, 2, 14, 1),
    Sketcher.Constraint("Tangent", 14, 2, 15, 2),
    Sketcher.Constraint("Tangent", 15, 1, 16, 1),
    Sketcher.Constraint("Tangent", 16, 2, 17, 2),
    Sketcher.Constraint("Tangent", 17, 1, 18, 1),
    Sketcher.Constraint("Tangent", 18, 2, 19, 1),
    Sketcher.Constraint("Tangent", 19, 2, 20, 1),
    Sketcher.Constraint("Tangent", 20, 2, 21, 2),
    Sketcher.Constraint("Tangent", 21, 1, 22, 1),
    Sketcher.Constraint("Tangent", 22, 2, 23, 2),
    Sketcher.Constraint("Tangent", 23, 1, 0, 1),
    Sketcher.Constraint("Horizontal", 4),
    Sketcher.Constraint("Vertical", 10),
    Sketcher.Constraint("Horizontal", 16),
    Sketcher.Constraint("Vertical", 22),
    Sketcher.Constraint("Coincident", 2, 3, 0, 3),
    Sketcher.Constraint("Coincident", 8, 3, 6, 3),
    Sketcher.Constraint("Coincident", 14, 3, 12, 3),
    Sketcher.Constraint("Coincident", 20, 3, 18, 3),
    Sketcher.Constraint("Equal", 3, 5),
    Sketcher.Constraint("Equal", 2, 6),
    Sketcher.Constraint("Equal", 9, 11),
    Sketcher.Constraint("Equal", 8, 12),
    Sketcher.Constraint("Equal", 5, 15),
    Sketcher.Constraint("Equal", 15, 17),
    Sketcher.Constraint("Equal", 14, 18),
    Sketcher.Constraint("Equal", 11, 21),
    Sketcher.Constraint("Equal", 21, 23),
    Sketcher.Constraint("Horizontal", 2, 3, 6, 3),
    Sketcher.Constraint("Horizontal", 14, 3, 18, 3),
    Sketcher.Constraint("Horizontal", 11, 3, 21, 3),
    Sketcher.Constraint("Horizontal", 9, 3, 23, 3),
    Sketcher.Constraint("Horizontal", 8, 3, 0, 2),
    Sketcher.Constraint("Horizontal", 0, 2, 7, 2),
    Sketcher.Constraint("Horizontal", 20, 3, 12, 2),
    Sketcher.Constraint("Horizontal", 12, 2, 19, 2),
    Sketcher.Constraint("Vertical", 8, 3, 12, 3),
    Sketcher.Constraint("Vertical", 5, 3, 15, 3),
    Sketcher.Constraint("Vertical", 20, 3, 1, 2),
    Sketcher.Constraint("Vertical", 14, 3, 6, 2),
    Sketcher.Constraint("Vertical", 6, 2, 13, 2),
    Sketcher.Constraint("Vertical", 1, 2, 18, 2),
    Sketcher.Constraint("Radius", 0, Q("3 mm")),
    Sketcher.Constraint("Radius", 3, Q("10 mm")),
    Sketcher.Constraint("Radius", 9, Q("20 mm")),
    Sketcher.Constraint("DistanceX", 3, 3, 2, 3, Q("5 mm")),
    Sketcher.Constraint("DistanceX", 9, 3, 8, 3, Q("22 mm")),
    Sketcher.Constraint("DistanceX", -1, 1, 0, 3, Q("131.73 mm")),
    Sketcher.Constraint("DistanceY", 12, 3, -1, 1, Q("34.05 mm")),
    Sketcher.Constraint("DistanceX", 4, 2, 4, 1, Q("2.00031 mm")),
    Sketcher.Constraint("DistanceY", 10, 2, 10, 1, Q("58.583602 mm")),
])
pocket4 = body3.newObject("PartDesign::Pocket", "Pocket003")
pocket4.Profile = sketch8
pocket4.Length = 2.7

# Sketch on XY plane
sketch9 = body3.newObject("Sketcher::SketchObject", "Sketch008")
sketch9.AttachmentSupport = (doc.getObject("XY_Plane002"), [""])
sketch9.MapMode = "FlatFace"
sketch9.addGeometry([
    Part.LineSegment(V(-113.6, -74.2, 0), V(113.6, -74.2, 0)),  # 0
    Part.ArcOfCircle(Part.Circle(V(113.6, -73.2, 0), V(0, 0, 1), 1), math.radians(-90), math.radians(0)),  # 1
    Part.LineSegment(V(114.6, -73.2, 0), V(114.6, 73.2, 0)),  # 2
    Part.ArcOfCircle(Part.Circle(V(113.6, 73.2, 0), V(0, 0, 1), 1), math.radians(0), math.radians(90)),  # 3
    Part.LineSegment(V(113.6, 74.2, 0), V(-113.6, 74.2, 0)),  # 4
    Part.ArcOfCircle(Part.Circle(V(-113.6, 73.2, 0), V(0, 0, 1), 1), math.radians(90), math.radians(180)),  # 5
    Part.LineSegment(V(-114.6, 73.2, 0), V(-114.6, -73.2, 0)),  # 6
    Part.ArcOfCircle(Part.Circle(V(-113.6, -73.2, 0), V(0, 0, 1), 1), math.radians(180), math.radians(270)),  # 7
], False)
sketch9.addConstraint([
    Sketcher.Constraint("Tangent", 0, 2, 1, 1),
    Sketcher.Constraint("Tangent", 1, 2, 2, 1),
    Sketcher.Constraint("Tangent", 2, 2, 3, 1),
    Sketcher.Constraint("Tangent", 3, 2, 4, 1),
    Sketcher.Constraint("Tangent", 4, 2, 5, 1),
    Sketcher.Constraint("Tangent", 5, 2, 6, 1),
    Sketcher.Constraint("Tangent", 6, 2, 7, 1),
    Sketcher.Constraint("Tangent", 7, 2, 0, 1),
    Sketcher.Constraint("Horizontal", 0),
    Sketcher.Constraint("Vertical", 2),
    Sketcher.Constraint("Horizontal", 4),
    Sketcher.Constraint("Vertical", 6),
    Sketcher.Constraint("Equal", 1, 3),
    Sketcher.Constraint("Equal", 3, 5),
    Sketcher.Constraint("Equal", 5, 7),
    Sketcher.Constraint("Symmetric", 1, 3, 5, 3, -1, 1),
    Sketcher.Constraint("Radius", 1, Q("1 mm")),
    Sketcher.Constraint("DistanceY", 2, 1, 2, 2, Q("146.5 mm")),
    Sketcher.Constraint("DistanceX", 0, 1, 0, 2, Q("227.16 mm")),
])
pad5 = body3.newObject("PartDesign::Pad", "Pad004")
pad5.Profile = sketch9
pad5.Length = 1.5

doc.recompute()
